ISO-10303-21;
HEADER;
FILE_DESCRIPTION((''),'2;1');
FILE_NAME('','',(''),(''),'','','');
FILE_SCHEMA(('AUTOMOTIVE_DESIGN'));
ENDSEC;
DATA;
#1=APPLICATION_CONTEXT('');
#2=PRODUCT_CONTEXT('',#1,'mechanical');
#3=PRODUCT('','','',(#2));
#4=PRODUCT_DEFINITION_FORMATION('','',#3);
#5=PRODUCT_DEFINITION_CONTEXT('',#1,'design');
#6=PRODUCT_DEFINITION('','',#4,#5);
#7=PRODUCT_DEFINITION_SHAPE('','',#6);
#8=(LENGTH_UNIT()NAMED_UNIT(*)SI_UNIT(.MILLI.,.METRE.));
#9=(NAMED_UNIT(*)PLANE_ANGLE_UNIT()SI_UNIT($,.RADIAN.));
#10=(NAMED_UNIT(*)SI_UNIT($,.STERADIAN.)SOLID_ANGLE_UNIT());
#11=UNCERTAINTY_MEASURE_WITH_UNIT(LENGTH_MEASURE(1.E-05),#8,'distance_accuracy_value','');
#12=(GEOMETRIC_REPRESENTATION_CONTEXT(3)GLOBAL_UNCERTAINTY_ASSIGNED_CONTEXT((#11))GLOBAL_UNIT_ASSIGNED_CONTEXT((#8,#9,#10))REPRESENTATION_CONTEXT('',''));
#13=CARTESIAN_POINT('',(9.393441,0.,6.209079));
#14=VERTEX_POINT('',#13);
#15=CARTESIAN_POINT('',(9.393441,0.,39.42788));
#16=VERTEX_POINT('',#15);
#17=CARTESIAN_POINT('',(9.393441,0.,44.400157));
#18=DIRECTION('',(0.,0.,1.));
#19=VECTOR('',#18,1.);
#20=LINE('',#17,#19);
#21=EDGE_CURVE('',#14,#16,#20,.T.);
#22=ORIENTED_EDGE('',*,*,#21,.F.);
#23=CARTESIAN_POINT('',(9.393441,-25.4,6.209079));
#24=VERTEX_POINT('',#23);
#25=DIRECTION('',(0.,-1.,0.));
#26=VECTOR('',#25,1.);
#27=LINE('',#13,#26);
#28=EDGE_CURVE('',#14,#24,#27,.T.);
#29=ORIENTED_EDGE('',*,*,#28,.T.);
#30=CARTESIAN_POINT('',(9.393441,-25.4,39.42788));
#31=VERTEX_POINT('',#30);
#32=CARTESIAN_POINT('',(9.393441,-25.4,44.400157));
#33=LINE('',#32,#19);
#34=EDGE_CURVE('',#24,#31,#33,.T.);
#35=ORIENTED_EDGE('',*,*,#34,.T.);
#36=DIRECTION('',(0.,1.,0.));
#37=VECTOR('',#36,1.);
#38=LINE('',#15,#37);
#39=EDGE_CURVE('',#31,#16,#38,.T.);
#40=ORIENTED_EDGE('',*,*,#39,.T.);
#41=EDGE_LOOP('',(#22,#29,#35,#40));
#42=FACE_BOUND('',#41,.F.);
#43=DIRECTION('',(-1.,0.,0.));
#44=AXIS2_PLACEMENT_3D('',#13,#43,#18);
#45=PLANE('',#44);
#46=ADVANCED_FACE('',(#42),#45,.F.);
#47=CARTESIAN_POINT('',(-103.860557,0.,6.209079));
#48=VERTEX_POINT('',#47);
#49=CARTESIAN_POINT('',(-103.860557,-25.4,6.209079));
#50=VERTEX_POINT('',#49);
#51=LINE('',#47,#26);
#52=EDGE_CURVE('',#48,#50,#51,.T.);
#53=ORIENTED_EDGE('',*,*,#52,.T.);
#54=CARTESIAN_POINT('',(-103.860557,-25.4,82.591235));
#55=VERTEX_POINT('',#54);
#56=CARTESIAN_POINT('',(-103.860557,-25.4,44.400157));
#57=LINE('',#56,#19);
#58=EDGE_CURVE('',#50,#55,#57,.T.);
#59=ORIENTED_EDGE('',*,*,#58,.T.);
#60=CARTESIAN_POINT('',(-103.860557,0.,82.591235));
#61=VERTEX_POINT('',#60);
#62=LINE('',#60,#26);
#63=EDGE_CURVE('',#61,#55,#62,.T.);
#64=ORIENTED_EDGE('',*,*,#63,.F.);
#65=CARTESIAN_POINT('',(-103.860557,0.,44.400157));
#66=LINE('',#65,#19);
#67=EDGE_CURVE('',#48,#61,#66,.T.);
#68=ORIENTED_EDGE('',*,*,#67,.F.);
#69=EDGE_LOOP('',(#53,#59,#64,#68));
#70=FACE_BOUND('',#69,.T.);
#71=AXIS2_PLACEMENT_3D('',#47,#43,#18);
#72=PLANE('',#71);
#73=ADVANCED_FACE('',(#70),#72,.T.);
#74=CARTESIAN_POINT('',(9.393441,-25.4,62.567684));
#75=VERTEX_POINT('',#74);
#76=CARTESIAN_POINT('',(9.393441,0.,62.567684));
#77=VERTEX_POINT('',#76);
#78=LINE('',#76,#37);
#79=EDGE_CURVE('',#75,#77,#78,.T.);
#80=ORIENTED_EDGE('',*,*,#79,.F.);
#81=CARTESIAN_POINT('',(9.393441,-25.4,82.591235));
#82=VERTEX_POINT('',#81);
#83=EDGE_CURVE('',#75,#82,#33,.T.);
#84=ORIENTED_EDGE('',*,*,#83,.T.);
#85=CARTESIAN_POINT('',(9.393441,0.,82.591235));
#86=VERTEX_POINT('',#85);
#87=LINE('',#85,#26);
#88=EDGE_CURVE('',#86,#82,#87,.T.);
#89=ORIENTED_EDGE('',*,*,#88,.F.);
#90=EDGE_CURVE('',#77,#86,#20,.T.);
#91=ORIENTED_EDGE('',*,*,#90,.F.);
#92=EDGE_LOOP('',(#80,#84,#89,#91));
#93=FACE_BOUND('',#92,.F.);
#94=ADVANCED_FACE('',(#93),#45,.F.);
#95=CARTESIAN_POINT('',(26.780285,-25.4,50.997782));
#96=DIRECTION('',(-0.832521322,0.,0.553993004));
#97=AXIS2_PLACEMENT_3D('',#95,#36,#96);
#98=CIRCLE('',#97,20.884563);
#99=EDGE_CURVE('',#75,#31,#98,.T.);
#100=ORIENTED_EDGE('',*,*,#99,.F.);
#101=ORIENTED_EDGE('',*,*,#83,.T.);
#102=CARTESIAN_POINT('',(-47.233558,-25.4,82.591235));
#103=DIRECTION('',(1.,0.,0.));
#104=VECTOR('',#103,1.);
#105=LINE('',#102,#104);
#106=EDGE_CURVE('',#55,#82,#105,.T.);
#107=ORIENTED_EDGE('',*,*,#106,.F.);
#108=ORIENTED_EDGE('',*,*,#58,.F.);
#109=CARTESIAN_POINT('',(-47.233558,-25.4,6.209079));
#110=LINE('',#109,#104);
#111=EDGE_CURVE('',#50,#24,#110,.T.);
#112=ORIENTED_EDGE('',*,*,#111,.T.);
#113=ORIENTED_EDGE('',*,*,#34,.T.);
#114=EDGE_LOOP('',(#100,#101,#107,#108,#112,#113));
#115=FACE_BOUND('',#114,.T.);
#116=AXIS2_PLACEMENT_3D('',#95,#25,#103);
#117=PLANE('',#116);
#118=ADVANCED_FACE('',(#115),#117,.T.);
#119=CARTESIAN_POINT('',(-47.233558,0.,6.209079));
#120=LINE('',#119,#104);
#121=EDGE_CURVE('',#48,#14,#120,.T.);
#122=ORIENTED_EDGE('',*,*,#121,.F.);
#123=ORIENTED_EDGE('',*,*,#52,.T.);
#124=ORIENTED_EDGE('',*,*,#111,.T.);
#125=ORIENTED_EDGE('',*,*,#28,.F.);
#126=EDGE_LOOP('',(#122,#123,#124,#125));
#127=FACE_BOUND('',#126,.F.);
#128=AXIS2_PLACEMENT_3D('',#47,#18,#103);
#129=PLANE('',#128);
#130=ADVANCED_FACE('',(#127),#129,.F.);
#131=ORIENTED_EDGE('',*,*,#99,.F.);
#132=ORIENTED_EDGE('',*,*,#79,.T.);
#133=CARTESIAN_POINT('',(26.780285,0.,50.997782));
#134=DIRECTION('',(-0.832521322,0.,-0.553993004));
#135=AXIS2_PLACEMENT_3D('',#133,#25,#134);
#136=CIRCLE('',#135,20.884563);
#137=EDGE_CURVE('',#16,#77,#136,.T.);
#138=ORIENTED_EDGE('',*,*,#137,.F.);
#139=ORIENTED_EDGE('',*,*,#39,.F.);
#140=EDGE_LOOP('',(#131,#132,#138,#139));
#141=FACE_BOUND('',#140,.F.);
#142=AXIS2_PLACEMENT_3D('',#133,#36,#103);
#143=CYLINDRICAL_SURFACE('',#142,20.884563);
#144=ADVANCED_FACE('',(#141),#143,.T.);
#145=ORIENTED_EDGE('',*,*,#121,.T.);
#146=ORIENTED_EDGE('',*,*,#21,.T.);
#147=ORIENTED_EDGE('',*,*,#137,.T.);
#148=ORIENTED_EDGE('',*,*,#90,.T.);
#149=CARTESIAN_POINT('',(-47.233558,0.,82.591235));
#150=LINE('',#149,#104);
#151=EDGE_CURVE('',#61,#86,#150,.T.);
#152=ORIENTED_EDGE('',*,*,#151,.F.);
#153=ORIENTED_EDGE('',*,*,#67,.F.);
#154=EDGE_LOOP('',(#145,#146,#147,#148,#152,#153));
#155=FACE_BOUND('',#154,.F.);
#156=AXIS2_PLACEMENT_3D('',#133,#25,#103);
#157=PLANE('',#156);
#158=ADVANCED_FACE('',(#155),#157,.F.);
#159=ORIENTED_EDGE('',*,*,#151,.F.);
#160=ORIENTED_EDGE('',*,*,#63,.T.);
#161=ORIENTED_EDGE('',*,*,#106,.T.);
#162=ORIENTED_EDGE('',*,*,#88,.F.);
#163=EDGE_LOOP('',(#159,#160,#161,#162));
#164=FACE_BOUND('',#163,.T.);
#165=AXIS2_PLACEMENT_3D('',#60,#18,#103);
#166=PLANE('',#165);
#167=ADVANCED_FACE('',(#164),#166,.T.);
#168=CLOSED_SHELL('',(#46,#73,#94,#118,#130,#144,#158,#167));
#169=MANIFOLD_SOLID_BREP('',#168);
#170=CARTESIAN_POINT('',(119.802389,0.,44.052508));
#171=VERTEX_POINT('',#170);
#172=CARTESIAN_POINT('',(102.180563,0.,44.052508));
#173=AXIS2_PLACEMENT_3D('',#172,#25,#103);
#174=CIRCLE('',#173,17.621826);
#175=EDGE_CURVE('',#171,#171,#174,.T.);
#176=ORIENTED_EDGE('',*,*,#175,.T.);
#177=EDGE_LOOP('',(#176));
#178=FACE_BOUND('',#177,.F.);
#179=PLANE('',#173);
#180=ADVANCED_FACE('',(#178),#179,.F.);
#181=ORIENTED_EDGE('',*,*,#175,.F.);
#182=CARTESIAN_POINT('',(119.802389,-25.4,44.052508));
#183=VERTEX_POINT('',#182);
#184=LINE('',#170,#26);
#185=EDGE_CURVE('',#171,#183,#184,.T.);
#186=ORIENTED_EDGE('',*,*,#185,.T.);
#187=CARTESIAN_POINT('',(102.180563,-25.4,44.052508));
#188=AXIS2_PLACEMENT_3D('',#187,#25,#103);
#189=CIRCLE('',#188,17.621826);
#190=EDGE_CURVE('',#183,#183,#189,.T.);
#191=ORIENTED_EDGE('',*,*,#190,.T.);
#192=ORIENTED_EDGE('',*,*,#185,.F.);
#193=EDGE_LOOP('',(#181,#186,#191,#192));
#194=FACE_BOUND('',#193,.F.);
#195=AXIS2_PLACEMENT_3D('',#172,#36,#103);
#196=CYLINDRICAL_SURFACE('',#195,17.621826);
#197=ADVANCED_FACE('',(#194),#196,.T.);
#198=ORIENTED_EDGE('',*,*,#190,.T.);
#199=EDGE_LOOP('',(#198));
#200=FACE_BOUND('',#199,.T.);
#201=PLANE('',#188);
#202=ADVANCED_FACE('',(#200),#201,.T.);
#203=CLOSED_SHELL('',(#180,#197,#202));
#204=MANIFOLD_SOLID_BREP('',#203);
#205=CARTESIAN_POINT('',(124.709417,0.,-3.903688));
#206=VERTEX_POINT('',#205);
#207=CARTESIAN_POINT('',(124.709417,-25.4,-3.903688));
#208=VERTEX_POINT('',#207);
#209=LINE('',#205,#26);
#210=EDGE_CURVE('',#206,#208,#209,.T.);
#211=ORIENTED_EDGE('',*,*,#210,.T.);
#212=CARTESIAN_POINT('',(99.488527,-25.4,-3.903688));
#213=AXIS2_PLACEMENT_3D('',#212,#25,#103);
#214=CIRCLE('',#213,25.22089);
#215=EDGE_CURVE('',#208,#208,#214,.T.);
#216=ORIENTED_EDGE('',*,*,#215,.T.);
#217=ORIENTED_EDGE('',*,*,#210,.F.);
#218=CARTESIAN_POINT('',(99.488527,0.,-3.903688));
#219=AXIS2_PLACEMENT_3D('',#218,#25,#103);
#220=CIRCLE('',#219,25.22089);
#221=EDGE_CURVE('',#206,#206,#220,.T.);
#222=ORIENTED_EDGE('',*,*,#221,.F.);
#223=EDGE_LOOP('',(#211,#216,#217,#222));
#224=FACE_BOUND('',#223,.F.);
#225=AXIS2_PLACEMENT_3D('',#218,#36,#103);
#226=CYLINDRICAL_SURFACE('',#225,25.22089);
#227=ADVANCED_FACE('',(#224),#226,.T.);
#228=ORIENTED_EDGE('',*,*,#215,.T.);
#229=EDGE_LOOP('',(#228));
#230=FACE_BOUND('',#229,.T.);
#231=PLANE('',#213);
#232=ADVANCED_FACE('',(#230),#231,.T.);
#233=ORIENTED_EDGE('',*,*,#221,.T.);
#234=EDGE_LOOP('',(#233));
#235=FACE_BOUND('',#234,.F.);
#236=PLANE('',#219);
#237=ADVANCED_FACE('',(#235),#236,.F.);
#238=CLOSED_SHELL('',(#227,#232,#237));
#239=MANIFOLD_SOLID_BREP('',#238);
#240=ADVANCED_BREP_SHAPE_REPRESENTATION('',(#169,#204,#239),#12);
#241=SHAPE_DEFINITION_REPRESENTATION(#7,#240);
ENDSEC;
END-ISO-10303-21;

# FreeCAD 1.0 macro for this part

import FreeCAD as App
import Part
import Sketcher
from FreeCAD import Vector

doc = App.newDocument("Part")
params = doc.addObject("Spreadsheet::Sheet", "Params")
for row, (alias, value) in enumerate([
    ("pad1_length", "1 in"),
    ("pad2_length", "1 in"),
], start=1):
    params.set(f"A{row}", alias)
    params.set(f"B{row}", "=" + value)
    params.setAlias(f"B{row}", alias)

body = doc.addObject("PartDesign::Body", "Body")
body.AllowCompound = True

# Sketch on XZ plane
sketch1 = body.newObject("Sketcher::SketchObject", "Sketch")
sketch1.AttachmentSupport = (doc.getObject("XZ_Plane"), [""])
sketch1.MapMode = "FlatFace"
sketch1.addGeometry([
    Part.LineSegment(Vector(-104, 83, 0), Vector(-104, 6, 0)),
    Part.LineSegment(Vector(-104, 6, 0), Vector(9, 6, 0)),
    Part.LineSegment(Vector(9, 6, 0), Vector(9, 83, 0)),
    Part.LineSegment(Vector(9, 83, 0), Vector(-104, 83, 0)),
], False)
sketch1.addConstraint([
    Sketcher.Constraint("Coincident", 0, 2, 1, 1),
    Sketcher.Constraint("Coincident", 1, 2, 2, 1),
    Sketcher.Constraint("Coincident", 2, 2, 3, 1),
    Sketcher.Constraint("Coincident", 3, 2, 0, 1),
    Sketcher.Constraint("Vertical", 0),
    Sketcher.Constraint("Horizontal", 1),
    Sketcher.Constraint("Vertical", 2),
    Sketcher.Constraint("Horizontal", 3),
    Sketcher.Constraint("DistanceX", 1, 1, 1, 2, 113.253998),
    Sketcher.Constraint("DistanceY", 0, 2, 0, 1, 76.382157),
    Sketcher.Constraint("DistanceY", -1, 1, 0, 2, 6.209079),
    Sketcher.Constraint("DistanceX", -1, 1, 1, 2, 9.393441),
])
pad1 = body.newObject("PartDesign::Pad", "Pad")
pad1.Profile = sketch1
pad1.setExpression("Length", "Params.pad1_length")

# Sketch on XZ plane
sketch2 = body.newObject("Sketcher::SketchObject", "Sketch001")
sketch2.AttachmentSupport = (doc.getObject("XZ_Plane"), [""])
sketch2.MapMode = "FlatFace"
sketch2.addGeometry([
    Part.Circle(Vector(27, 51, 0), Vector(0, 0, 1), 21),
    Part.Circle(Vector(102, 44, 0), Vector(0, 0, 1), 18),
    Part.Circle(Vector(99, -4, 0), Vector(0, 0, 1), 25),
], False)
sketch2.addConstraint([
    Sketcher.Constraint("Diameter", 1, 35.243652),
    Sketcher.Constraint("Diameter", 2, 50.44178),
    Sketcher.Constraint("Diameter", 0, 41.769126),
    Sketcher.Constraint("DistanceY", -1, 1, 1, 3, 44.052508),
    Sketcher.Constraint("DistanceX", 0, 3, 1, 3, 75.400278),
    Sketcher.Constraint("DistanceY", 2, 3, 0, 3, 54.90147),
    Sketcher.Constraint("DistanceX", -1, 1, 0, 3, 26.780285),
    Sketcher.Constraint("DistanceY", -1, 1, 0, 3, 50.997782),
    Sketcher.Constraint("DistanceX", -1, 1, 2, 3, 99.488527),
])
pad2 = body.newObject("PartDesign::Pad", "Pad001")
pad2.Profile = sketch2
pad2.setExpression("Length", "Params.pad2_length")

doc.recompute()
